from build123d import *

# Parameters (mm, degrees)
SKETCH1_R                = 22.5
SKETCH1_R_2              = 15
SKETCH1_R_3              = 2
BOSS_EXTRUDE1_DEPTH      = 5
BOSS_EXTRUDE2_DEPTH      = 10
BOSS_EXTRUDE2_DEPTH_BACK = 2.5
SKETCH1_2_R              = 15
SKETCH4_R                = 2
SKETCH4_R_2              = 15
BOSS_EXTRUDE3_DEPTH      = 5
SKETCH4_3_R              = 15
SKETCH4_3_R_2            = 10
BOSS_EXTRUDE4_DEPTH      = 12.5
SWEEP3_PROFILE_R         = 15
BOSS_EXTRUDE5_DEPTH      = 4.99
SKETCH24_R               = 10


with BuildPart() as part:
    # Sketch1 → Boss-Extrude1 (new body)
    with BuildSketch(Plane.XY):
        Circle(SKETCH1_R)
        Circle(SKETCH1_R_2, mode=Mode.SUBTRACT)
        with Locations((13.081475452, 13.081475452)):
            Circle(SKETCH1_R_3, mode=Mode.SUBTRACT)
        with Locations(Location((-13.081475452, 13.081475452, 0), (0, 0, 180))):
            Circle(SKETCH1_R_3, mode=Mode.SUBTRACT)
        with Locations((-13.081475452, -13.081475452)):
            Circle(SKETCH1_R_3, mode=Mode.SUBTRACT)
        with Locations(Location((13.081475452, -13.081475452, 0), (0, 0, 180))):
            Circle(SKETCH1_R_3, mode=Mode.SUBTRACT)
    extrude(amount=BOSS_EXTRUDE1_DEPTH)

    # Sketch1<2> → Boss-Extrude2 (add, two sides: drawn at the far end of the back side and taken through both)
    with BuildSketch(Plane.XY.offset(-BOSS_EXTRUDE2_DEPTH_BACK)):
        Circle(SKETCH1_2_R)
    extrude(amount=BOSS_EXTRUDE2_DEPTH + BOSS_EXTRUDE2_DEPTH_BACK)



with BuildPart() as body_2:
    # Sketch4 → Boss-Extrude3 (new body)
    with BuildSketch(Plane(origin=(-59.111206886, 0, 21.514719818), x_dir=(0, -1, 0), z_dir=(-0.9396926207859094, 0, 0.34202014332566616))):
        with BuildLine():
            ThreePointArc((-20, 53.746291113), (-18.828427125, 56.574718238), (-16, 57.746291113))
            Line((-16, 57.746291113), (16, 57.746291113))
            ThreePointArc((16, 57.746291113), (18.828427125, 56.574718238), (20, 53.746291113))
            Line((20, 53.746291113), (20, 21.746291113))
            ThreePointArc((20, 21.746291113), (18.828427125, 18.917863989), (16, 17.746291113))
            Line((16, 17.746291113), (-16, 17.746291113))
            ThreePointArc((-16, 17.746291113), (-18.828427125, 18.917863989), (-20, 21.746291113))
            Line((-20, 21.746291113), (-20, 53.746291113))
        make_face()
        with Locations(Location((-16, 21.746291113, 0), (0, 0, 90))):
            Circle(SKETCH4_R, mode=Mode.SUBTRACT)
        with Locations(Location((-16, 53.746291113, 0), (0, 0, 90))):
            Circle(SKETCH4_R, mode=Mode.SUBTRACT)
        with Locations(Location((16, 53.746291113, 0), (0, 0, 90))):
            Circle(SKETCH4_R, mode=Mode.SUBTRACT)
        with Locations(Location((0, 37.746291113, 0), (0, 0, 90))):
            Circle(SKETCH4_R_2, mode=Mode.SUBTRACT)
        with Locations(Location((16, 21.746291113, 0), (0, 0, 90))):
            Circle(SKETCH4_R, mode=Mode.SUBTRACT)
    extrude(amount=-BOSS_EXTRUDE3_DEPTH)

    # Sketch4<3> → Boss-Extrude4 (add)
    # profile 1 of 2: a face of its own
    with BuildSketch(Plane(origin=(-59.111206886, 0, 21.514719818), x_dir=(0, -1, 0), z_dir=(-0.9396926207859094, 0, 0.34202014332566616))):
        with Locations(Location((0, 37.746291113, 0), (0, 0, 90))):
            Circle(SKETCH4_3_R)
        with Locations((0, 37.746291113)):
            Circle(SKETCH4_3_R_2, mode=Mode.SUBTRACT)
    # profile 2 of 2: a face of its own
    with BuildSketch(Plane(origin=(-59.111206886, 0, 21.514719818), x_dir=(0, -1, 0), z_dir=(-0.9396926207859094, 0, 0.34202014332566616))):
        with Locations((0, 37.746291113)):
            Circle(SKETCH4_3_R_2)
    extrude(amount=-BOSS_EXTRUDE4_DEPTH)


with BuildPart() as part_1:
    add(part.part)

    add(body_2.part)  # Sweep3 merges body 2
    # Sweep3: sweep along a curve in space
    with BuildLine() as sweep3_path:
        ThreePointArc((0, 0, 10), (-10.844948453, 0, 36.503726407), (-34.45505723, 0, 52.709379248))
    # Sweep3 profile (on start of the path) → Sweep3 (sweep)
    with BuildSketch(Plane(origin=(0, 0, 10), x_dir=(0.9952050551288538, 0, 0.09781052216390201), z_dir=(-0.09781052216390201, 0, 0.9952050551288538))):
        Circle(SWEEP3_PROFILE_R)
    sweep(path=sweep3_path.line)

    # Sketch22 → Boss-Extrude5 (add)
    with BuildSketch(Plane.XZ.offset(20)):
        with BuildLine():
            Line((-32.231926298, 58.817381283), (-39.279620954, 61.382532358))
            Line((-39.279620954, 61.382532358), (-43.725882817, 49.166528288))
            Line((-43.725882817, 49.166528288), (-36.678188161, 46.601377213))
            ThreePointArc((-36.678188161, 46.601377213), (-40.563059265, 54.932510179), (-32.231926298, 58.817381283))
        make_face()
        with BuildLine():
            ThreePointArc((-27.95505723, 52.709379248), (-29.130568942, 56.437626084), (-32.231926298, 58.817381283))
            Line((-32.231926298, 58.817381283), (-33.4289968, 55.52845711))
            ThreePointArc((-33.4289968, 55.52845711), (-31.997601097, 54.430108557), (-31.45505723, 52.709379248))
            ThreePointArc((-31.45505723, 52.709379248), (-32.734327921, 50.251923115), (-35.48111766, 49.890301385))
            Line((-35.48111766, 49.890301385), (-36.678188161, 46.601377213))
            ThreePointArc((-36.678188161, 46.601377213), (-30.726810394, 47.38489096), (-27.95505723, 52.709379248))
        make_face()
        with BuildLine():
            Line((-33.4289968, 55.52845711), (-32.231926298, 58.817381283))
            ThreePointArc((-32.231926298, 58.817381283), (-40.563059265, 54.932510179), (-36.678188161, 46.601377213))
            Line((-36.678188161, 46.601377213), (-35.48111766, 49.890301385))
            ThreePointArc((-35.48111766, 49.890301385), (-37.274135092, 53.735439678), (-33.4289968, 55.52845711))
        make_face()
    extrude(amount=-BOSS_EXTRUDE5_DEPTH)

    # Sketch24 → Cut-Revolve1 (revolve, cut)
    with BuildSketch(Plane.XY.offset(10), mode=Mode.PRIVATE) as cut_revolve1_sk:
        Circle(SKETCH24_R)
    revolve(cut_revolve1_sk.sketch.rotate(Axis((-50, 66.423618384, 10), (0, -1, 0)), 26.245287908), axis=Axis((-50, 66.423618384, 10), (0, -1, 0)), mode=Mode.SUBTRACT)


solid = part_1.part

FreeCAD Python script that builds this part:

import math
import FreeCAD as App
import Part
import Sketcher
Q = App.Units.Quantity

doc = App.newDocument("Part")
body = doc.addObject("PartDesign::Body", "Body")

# Sketch on XY plane
sketch1 = body.newObject("Sketcher::SketchObject", "Sketch")
sketch1.AttachmentSupport = (doc.getObject("XY_Plane"), [""])
sketch1.MapMode = "FlatFace"
sketch1.addGeometry([
    Part.Circle(App.Vector(0, 0, 0), App.Vector(0, 0, 1), 22.5),  # 0
    Part.Circle(App.Vector(-13.1, -13.1, 0), App.Vector(0, 0, 1), 2),  # 1
    Part.Circle(App.Vector(13.1, -13.1, 0), App.Vector(0, 0, 1), 2),  # 2
    Part.Circle(App.Vector(-13.1, 13.1, 0), App.Vector(0, 0, 1), 2),  # 3
    Part.Circle(App.Vector(0, 0, 0), App.Vector(0, 0, 1), 15),  # 4
    Part.Circle(App.Vector(13.1, 13.1, 0), App.Vector(0, 0, 1), 2),  # 5
], False)
sketch1.addConstraint([
    Sketcher.Constraint("Coincident", 0, 3, -1, 1),
    Sketcher.Constraint("Coincident", 4, 3, -1, 1),
    Sketcher.Constraint("Equal", 1, 2),
    Sketcher.Constraint("Equal", 2, 3),
    Sketcher.Constraint("Equal", 3, 5),
    Sketcher.Constraint("Symmetric", 2, 3, 3, 3, -1, 1),
    Sketcher.Constraint("Symmetric", 1, 3, 5, 3, -1, 1),
    Sketcher.Constraint("Symmetric", 1, 3, 2, 3, -2),
    Sketcher.Constraint("Diameter", 0, Q("45 mm")),
    Sketcher.Constraint("Diameter", 1, Q("4 mm")),
    Sketcher.Constraint("Diameter", 4, Q("30 mm")),
    Sketcher.Constraint("DistanceX", 1, 3, 2, 3, Q("26.162951 mm")),
    Sketcher.Constraint("DistanceY", 1, 3, 3, 3, Q("26.162951 mm")),
])
pad1 = body.newObject("PartDesign::Pad", "Pad")
pad1.Profile = sketch1
pad1.Length = 5

# Sketch on XY plane
sketch2 = body.newObject("Sketcher::SketchObject", "Sketch001")
sketch2.AttachmentSupport = (doc.getObject("XY_Plane"), [""])
sketch2.MapMode = "FlatFace"
sketch2.addGeometry(Part.Circle(App.Vector(0, 0, 0), App.Vector(0, 0, 1), 15), False)
sketch2.addConstraint([
    Sketcher.Constraint("Coincident", 0, 3, -1, 1),
    Sketcher.Constraint("Diameter", 0, Q("30 mm")),
])
pad2 = body.newObject("PartDesign::Pad", "Pad001")
pad2.Profile = sketch2
pad2.Type = "TwoLengths"
pad2.Length = 10
pad2.Length2 = 2.5
body2 = doc.addObject("PartDesign::Body", "Body001")

# Sketch on an angled plane
sketch3 = body2.newObject("Sketcher::SketchObject", "Sketch002")
sketch3.Placement = App.Placement(App.Vector(-59.111207, 0, 21.51472), App.Rotation(App.Vector(0, -1, 0), App.Vector(0.342020143, 0, 0.939692621), App.Vector(-0.939692621, 0, 0.342020143), "ZXY"))
sketch3.addGeometry([
    Part.ArcOfCircle(Part.Circle(App.Vector(-16, 53.7, 0), App.Vector(0, 0, 1), 4), math.radians(90), math.radians(180)),  # 0
    Part.LineSegment(App.Vector(-20, 53.7, 0), App.Vector(-20, 21.7, 0)),  # 1
    Part.ArcOfCircle(Part.Circle(App.Vector(-16, 21.7, 0), App.Vector(0, 0, 1), 4), math.radians(-180), math.radians(-90)),  # 2
    Part.LineSegment(App.Vector(-16, 17.7, 0), App.Vector(16, 17.7, 0)),  # 3
    Part.ArcOfCircle(Part.Circle(App.Vector(16, 21.7, 0), App.Vector(0, 0, 1), 4), math.radians(-90), math.radians(0)),  # 4
    Part.LineSegment(App.Vector(20, 21.7, 0), App.Vector(20, 53.7, 0)),  # 5
    Part.ArcOfCircle(Part.Circle(App.Vector(16, 53.7, 0), App.Vector(0, 0, 1), 4), math.radians(0), math.radians(90)),  # 6
    Part.LineSegment(App.Vector(16, 57.7, 0), App.Vector(-16, 57.7, 0)),  # 7
    Part.Circle(App.Vector(16, 21.7, 0), App.Vector(0, 0, 1), 2),  # 8
    Part.Circle(App.Vector(-16, 21.7, 0), App.Vector(0, 0, 1), 2),  # 9
    Part.Circle(App.Vector(0, 37.7, 0), App.Vector(0, 0, 1), 15),  # 10
    Part.Circle(App.Vector(16, 53.7, 0), App.Vector(0, 0, 1), 2),  # 11
    Part.Circle(App.Vector(-16, 53.7, 0), App.Vector(0, 0, 1), 2),  # 12
], False)
sketch3.addConstraint([
    Sketcher.Constraint("Tangent", 0, 2, 1, 1),
    Sketcher.Constraint("Tangent", 1, 2, 2, 1),
    Sketcher.Constraint("Tangent", 2, 2, 3, 1),
    Sketcher.Constraint("Tangent", 3, 2, 4, 1),
    Sketcher.Constraint("Tangent", 4, 2, 5, 1),
    Sketcher.Constraint("Tangent", 5, 2, 6, 1),
    Sketcher.Constraint("Tangent", 6, 2, 7, 1),
    Sketcher.Constraint("Tangent", 7, 2, 0, 1),
    Sketcher.Constraint("Vertical", 1),
    Sketcher.Constraint("Horizontal", 3),
    Sketcher.Constraint("Vertical", 5),
    Sketcher.Constraint("Horizontal", 7),
    Sketcher.Constraint("Coincident", 8, 3, 4, 3),
    Sketcher.Constraint("Coincident", 9, 3, 2, 3),
    Sketcher.Constraint("Coincident", 11, 3, 6, 3),
    Sketcher.Constraint("Coincident", 12, 3, 0, 3),
    Sketcher.Constraint("Equal", 0, 2),
    Sketcher.Constraint("Equal", 2, 4),
    Sketcher.Constraint("Equal", 4, 6),
    Sketcher.Constraint("Equal", 8, 9),
    Sketcher.Constraint("Equal", 9, 11),
    Sketcher.Constraint("Equal", 11, 12),
    Sketcher.Constraint("PointOnObject", 10, 3, -2),
    Sketcher.Constraint("Equal", 7, 1),
    Sketcher.Constraint("Diameter", 8, Q("4 mm")),
    Sketcher.Constraint("Diameter", 10, Q("30 mm")),
    Sketcher.Constraint("Radius", 0, Q("4 mm")),
    Sketcher.Constraint("DistanceX", 3, 1, 3, 2, Q("32 mm")),
    Sketcher.Constraint("DistanceX", 0, 3, -1, 1, Q("16 mm")),
    Sketcher.Constraint("DistanceY", 2, 3, 10, 3, Q("16 mm")),
    Sketcher.Constraint("DistanceY", -1, 1, 0, 3, Q("53.746291 mm")),
])
pad3 = body2.newObject("PartDesign::Pad", "Pad002")
pad3.Profile = sketch3
pad3.Length = 5
pad3.Reversed = True

# Sketch on an angled plane
sketch4 = body2.newObject("Sketcher::SketchObject", "Sketch003")
sketch4.Placement = App.Placement(App.Vector(-59.111207, 0, 21.51472), App.Rotation(App.Vector(0, -1, 0), App.Vector(0.342020143, 0, 0.939692621), App.Vector(-0.939692621, 0, 0.342020143), "ZXY"))
sketch4.addGeometry(Part.Circle(App.Vector(0, 38, 0), App.Vector(0, 0, 1), 15), False)
sketch4.addConstraint([
    Sketcher.Constraint("PointOnObject", 0, 3, -2),
    Sketcher.Constraint("Diameter", 0, Q("30 mm")),
    Sketcher.Constraint("DistanceY", -1, 1, 0, 3, Q("37.746291 mm")),
])
pad4 = body2.newObject("PartDesign::Pad", "Pad003")
pad4.Profile = sketch4
pad4.Length = 12.5
pad4.Reversed = True
body.AllowCompound = True
doc.recompute()

boolean = body.newObject("PartDesign::Boolean", "Boolean")
boolean.Type = "Fuse"
boolean.addObjects([body2])

# Sketch on an angled plane
sketch5 = body.newObject("Sketcher::SketchObject", "Sketch004")
sketch5.Placement = App.Placement(App.Vector(0, 0, 10), App.Rotation(App.Vector(0.995205055, 0, 0.097810522), App.Vector(0, 1, 0), App.Vector(-0.097810522, 0, 0.995205055), "ZXY"))
sketch5.addGeometry(Part.Circle(App.Vector(0, 0, 0), App.Vector(0, 0, 1), 15), False)
sketch5.addConstraint([
    Sketcher.Constraint("Coincident", 0, 3, -1, 1),
    Sketcher.Constraint("Diameter", 0, Q("30 mm")),
])

# Sketch on XZ plane
sketch6 = body.newObject("Sketcher::SketchObject", "Sketch005")
sketch6.AttachmentSupport = (doc.getObject("XZ_Plane"), [""])
sketch6.MapMode = "FlatFace"
sketch6.addGeometry(Part.ArcOfCircle(Part.Circle(App.Vector(-50, 5, 0), App.Vector(0, 0, 1), 50), math.radians(6), math.radians(72)), False)
sketch6.addConstraint([
    Sketcher.Constraint("PointOnObject", 0, 1, -2),
    Sketcher.Constraint("Radius", 0, Q("50 mm")),
    Sketcher.Constraint("DistanceY", -1, 1, 0, 1, Q("10 mm")),
    Sketcher.Constraint("DistanceY", -1, 1, 0, 2, Q("52.709379 mm")),
    Sketcher.Constraint("DistanceX", 0, 3, -1, 1, Q("49.760253 mm")),
])
doc.recompute()

additivepipe = body.newObject("PartDesign::AdditivePipe", "AdditivePipe")
additivepipe.Profile = sketch5
additivepipe.Spine = (sketch6, ["Edge1"])

# Sketch on XZ plane
sketch7 = body.newObject("Sketcher::SketchObject", "Sketch006")
sketch7.AttachmentSupport = (doc.getObject("XZ_Plane"), [""])
sketch7.MapMode = "FlatFace"
sketch7.AttachmentOffset = App.Placement(App.Vector(0, 0, 20), App.Rotation())
sketch7.addGeometry([
    Part.ArcOfCircle(Part.Circle(App.Vector(-34.5, 52.7, 0), App.Vector(0, 0, 1), 6.5), math.radians(-110), math.radians(0)),  # 0
    Part.ArcOfCircle(Part.Circle(App.Vector(-34.5, 52.7, 0), App.Vector(0, 0, 1), 6.5), math.radians(0), math.radians(70)),  # 1
    Part.LineSegment(App.Vector(-32.2, 58.8, 0), App.Vector(-39.3, 61.4, 0)),  # 2
    Part.LineSegment(App.Vector(-39.3, 61.4, 0), App.Vector(-43.7, 49.2, 0)),  # 3
    Part.LineSegment(App.Vector(-43.7, 49.2, 0), App.Vector(-36.7, 46.6, 0)),  # 4
    Part.ArcOfCircle(Part.Circle(App.Vector(-34.5, 52.7, 0), App.Vector(0, 0, 1), 3), math.radians(70), math.radians(250)),  # 5
    Part.ArcOfCircle(Part.Circle(App.Vector(-34.5, 52.7, 0), App.Vector(0, 0, 1), 3), math.radians(0), math.radians(70)),  # 6
    Part.ArcOfCircle(Part.Circle(App.Vector(-34.5, 52.7, 0), App.Vector(0, 0, 1), 3), math.radians(-110), math.radians(0)),  # 7
], False)
sketch7.addConstraint([
    Sketcher.Constraint("Tangent", 0, 2, 1, 1),
    Sketcher.Constraint("Tangent", 1, 2, 2, 1),
    Sketcher.Constraint("Coincident", 2, 2, 3, 1),
    Sketcher.Constraint("Coincident", 3, 2, 4, 1),
    Sketcher.Constraint("Tangent", 4, 2, 0, 1),
    Sketcher.Constraint("Tangent", 5, 1, 6, 2),
    Sketcher.Constraint("Tangent", 6, 1, 7, 2),
    Sketcher.Constraint("Tangent", 7, 1, 5, 2),
    Sketcher.Constraint("Coincident", 5, 3, 0, 3),
    Sketcher.Constraint("Equal", 0, 1),
    Sketcher.Constraint("Perpendicular", 2, 3),
    Sketcher.Constraint("Perpendicular", 3, 4),
    Sketcher.Constraint("Horizontal", 7, 3, 0, 2),
    Sketcher.Constraint("Horizontal", 0, 2, 6, 1),
    Sketcher.Constraint("Radius", 5, Q("3 mm")),
    Sketcher.Constraint("Radius", 0, Q("6.5 mm")),
    Sketcher.Constraint("Angle", 2, Q("160 deg")),
    Sketcher.Constraint("Distance", 2, Q("7.5 mm")),
    Sketcher.Constraint("DistanceY", -1, 1, 7, 1, Q("49.890301 mm")),
    Sketcher.Constraint("DistanceY", -1, 1, 0, 3, Q("52.709379 mm")),
    Sketcher.Constraint("DistanceX", 2, 2, -1, 1, Q("39.279621 mm")),
    Sketcher.Constraint("DistanceX", 6, 3, 5, 1, Q("1.02606 mm")),
])
pad5 = body.newObject("PartDesign::Pad", "Pad004")
pad5.Profile = sketch7
pad5.Length = 4.99
pad5.Reversed = True

# Sketch on XY plane
sketch8 = body.newObject("Sketcher::SketchObject", "Sketch007")
sketch8.AttachmentSupport = (doc.getObject("XY_Plane"), [""])
sketch8.MapMode = "FlatFace"
sketch8.AttachmentOffset = App.Placement(App.Vector(0, 0, 10), App.Rotation())
sketch8.addGeometry(Part.Circle(App.Vector(0, 0, 0), App.Vector(0, 0, 1), 10), False)
sketch8.addGeometry(Part.LineSegment(App.Vector(-50, 0, 0), App.Vector(-50, -10, 0)), True)  # axis
sketch8.addConstraint([
    Sketcher.Constraint("Vertical", 1),
    Sketcher.Constraint("Coincident", 0, 3, -1, 1),
    Sketcher.Constraint("PointOnObject", 1, 1, -1),
    Sketcher.Constraint("Diameter", 0, Q("20 mm")),
    Sketcher.Constraint("DistanceY", 1, 2, 1, 1, Q("10 mm")),
    Sketcher.Constraint("DistanceX", 1, 1, -1, 1, Q("50 mm")),
])
groove = body.newObject("PartDesign::Groove", "Groove")
groove.Profile = sketch8
groove.ReferenceAxis = (sketch8, ["Axis0"])
groove.Angle = 360

doc.recompute()
